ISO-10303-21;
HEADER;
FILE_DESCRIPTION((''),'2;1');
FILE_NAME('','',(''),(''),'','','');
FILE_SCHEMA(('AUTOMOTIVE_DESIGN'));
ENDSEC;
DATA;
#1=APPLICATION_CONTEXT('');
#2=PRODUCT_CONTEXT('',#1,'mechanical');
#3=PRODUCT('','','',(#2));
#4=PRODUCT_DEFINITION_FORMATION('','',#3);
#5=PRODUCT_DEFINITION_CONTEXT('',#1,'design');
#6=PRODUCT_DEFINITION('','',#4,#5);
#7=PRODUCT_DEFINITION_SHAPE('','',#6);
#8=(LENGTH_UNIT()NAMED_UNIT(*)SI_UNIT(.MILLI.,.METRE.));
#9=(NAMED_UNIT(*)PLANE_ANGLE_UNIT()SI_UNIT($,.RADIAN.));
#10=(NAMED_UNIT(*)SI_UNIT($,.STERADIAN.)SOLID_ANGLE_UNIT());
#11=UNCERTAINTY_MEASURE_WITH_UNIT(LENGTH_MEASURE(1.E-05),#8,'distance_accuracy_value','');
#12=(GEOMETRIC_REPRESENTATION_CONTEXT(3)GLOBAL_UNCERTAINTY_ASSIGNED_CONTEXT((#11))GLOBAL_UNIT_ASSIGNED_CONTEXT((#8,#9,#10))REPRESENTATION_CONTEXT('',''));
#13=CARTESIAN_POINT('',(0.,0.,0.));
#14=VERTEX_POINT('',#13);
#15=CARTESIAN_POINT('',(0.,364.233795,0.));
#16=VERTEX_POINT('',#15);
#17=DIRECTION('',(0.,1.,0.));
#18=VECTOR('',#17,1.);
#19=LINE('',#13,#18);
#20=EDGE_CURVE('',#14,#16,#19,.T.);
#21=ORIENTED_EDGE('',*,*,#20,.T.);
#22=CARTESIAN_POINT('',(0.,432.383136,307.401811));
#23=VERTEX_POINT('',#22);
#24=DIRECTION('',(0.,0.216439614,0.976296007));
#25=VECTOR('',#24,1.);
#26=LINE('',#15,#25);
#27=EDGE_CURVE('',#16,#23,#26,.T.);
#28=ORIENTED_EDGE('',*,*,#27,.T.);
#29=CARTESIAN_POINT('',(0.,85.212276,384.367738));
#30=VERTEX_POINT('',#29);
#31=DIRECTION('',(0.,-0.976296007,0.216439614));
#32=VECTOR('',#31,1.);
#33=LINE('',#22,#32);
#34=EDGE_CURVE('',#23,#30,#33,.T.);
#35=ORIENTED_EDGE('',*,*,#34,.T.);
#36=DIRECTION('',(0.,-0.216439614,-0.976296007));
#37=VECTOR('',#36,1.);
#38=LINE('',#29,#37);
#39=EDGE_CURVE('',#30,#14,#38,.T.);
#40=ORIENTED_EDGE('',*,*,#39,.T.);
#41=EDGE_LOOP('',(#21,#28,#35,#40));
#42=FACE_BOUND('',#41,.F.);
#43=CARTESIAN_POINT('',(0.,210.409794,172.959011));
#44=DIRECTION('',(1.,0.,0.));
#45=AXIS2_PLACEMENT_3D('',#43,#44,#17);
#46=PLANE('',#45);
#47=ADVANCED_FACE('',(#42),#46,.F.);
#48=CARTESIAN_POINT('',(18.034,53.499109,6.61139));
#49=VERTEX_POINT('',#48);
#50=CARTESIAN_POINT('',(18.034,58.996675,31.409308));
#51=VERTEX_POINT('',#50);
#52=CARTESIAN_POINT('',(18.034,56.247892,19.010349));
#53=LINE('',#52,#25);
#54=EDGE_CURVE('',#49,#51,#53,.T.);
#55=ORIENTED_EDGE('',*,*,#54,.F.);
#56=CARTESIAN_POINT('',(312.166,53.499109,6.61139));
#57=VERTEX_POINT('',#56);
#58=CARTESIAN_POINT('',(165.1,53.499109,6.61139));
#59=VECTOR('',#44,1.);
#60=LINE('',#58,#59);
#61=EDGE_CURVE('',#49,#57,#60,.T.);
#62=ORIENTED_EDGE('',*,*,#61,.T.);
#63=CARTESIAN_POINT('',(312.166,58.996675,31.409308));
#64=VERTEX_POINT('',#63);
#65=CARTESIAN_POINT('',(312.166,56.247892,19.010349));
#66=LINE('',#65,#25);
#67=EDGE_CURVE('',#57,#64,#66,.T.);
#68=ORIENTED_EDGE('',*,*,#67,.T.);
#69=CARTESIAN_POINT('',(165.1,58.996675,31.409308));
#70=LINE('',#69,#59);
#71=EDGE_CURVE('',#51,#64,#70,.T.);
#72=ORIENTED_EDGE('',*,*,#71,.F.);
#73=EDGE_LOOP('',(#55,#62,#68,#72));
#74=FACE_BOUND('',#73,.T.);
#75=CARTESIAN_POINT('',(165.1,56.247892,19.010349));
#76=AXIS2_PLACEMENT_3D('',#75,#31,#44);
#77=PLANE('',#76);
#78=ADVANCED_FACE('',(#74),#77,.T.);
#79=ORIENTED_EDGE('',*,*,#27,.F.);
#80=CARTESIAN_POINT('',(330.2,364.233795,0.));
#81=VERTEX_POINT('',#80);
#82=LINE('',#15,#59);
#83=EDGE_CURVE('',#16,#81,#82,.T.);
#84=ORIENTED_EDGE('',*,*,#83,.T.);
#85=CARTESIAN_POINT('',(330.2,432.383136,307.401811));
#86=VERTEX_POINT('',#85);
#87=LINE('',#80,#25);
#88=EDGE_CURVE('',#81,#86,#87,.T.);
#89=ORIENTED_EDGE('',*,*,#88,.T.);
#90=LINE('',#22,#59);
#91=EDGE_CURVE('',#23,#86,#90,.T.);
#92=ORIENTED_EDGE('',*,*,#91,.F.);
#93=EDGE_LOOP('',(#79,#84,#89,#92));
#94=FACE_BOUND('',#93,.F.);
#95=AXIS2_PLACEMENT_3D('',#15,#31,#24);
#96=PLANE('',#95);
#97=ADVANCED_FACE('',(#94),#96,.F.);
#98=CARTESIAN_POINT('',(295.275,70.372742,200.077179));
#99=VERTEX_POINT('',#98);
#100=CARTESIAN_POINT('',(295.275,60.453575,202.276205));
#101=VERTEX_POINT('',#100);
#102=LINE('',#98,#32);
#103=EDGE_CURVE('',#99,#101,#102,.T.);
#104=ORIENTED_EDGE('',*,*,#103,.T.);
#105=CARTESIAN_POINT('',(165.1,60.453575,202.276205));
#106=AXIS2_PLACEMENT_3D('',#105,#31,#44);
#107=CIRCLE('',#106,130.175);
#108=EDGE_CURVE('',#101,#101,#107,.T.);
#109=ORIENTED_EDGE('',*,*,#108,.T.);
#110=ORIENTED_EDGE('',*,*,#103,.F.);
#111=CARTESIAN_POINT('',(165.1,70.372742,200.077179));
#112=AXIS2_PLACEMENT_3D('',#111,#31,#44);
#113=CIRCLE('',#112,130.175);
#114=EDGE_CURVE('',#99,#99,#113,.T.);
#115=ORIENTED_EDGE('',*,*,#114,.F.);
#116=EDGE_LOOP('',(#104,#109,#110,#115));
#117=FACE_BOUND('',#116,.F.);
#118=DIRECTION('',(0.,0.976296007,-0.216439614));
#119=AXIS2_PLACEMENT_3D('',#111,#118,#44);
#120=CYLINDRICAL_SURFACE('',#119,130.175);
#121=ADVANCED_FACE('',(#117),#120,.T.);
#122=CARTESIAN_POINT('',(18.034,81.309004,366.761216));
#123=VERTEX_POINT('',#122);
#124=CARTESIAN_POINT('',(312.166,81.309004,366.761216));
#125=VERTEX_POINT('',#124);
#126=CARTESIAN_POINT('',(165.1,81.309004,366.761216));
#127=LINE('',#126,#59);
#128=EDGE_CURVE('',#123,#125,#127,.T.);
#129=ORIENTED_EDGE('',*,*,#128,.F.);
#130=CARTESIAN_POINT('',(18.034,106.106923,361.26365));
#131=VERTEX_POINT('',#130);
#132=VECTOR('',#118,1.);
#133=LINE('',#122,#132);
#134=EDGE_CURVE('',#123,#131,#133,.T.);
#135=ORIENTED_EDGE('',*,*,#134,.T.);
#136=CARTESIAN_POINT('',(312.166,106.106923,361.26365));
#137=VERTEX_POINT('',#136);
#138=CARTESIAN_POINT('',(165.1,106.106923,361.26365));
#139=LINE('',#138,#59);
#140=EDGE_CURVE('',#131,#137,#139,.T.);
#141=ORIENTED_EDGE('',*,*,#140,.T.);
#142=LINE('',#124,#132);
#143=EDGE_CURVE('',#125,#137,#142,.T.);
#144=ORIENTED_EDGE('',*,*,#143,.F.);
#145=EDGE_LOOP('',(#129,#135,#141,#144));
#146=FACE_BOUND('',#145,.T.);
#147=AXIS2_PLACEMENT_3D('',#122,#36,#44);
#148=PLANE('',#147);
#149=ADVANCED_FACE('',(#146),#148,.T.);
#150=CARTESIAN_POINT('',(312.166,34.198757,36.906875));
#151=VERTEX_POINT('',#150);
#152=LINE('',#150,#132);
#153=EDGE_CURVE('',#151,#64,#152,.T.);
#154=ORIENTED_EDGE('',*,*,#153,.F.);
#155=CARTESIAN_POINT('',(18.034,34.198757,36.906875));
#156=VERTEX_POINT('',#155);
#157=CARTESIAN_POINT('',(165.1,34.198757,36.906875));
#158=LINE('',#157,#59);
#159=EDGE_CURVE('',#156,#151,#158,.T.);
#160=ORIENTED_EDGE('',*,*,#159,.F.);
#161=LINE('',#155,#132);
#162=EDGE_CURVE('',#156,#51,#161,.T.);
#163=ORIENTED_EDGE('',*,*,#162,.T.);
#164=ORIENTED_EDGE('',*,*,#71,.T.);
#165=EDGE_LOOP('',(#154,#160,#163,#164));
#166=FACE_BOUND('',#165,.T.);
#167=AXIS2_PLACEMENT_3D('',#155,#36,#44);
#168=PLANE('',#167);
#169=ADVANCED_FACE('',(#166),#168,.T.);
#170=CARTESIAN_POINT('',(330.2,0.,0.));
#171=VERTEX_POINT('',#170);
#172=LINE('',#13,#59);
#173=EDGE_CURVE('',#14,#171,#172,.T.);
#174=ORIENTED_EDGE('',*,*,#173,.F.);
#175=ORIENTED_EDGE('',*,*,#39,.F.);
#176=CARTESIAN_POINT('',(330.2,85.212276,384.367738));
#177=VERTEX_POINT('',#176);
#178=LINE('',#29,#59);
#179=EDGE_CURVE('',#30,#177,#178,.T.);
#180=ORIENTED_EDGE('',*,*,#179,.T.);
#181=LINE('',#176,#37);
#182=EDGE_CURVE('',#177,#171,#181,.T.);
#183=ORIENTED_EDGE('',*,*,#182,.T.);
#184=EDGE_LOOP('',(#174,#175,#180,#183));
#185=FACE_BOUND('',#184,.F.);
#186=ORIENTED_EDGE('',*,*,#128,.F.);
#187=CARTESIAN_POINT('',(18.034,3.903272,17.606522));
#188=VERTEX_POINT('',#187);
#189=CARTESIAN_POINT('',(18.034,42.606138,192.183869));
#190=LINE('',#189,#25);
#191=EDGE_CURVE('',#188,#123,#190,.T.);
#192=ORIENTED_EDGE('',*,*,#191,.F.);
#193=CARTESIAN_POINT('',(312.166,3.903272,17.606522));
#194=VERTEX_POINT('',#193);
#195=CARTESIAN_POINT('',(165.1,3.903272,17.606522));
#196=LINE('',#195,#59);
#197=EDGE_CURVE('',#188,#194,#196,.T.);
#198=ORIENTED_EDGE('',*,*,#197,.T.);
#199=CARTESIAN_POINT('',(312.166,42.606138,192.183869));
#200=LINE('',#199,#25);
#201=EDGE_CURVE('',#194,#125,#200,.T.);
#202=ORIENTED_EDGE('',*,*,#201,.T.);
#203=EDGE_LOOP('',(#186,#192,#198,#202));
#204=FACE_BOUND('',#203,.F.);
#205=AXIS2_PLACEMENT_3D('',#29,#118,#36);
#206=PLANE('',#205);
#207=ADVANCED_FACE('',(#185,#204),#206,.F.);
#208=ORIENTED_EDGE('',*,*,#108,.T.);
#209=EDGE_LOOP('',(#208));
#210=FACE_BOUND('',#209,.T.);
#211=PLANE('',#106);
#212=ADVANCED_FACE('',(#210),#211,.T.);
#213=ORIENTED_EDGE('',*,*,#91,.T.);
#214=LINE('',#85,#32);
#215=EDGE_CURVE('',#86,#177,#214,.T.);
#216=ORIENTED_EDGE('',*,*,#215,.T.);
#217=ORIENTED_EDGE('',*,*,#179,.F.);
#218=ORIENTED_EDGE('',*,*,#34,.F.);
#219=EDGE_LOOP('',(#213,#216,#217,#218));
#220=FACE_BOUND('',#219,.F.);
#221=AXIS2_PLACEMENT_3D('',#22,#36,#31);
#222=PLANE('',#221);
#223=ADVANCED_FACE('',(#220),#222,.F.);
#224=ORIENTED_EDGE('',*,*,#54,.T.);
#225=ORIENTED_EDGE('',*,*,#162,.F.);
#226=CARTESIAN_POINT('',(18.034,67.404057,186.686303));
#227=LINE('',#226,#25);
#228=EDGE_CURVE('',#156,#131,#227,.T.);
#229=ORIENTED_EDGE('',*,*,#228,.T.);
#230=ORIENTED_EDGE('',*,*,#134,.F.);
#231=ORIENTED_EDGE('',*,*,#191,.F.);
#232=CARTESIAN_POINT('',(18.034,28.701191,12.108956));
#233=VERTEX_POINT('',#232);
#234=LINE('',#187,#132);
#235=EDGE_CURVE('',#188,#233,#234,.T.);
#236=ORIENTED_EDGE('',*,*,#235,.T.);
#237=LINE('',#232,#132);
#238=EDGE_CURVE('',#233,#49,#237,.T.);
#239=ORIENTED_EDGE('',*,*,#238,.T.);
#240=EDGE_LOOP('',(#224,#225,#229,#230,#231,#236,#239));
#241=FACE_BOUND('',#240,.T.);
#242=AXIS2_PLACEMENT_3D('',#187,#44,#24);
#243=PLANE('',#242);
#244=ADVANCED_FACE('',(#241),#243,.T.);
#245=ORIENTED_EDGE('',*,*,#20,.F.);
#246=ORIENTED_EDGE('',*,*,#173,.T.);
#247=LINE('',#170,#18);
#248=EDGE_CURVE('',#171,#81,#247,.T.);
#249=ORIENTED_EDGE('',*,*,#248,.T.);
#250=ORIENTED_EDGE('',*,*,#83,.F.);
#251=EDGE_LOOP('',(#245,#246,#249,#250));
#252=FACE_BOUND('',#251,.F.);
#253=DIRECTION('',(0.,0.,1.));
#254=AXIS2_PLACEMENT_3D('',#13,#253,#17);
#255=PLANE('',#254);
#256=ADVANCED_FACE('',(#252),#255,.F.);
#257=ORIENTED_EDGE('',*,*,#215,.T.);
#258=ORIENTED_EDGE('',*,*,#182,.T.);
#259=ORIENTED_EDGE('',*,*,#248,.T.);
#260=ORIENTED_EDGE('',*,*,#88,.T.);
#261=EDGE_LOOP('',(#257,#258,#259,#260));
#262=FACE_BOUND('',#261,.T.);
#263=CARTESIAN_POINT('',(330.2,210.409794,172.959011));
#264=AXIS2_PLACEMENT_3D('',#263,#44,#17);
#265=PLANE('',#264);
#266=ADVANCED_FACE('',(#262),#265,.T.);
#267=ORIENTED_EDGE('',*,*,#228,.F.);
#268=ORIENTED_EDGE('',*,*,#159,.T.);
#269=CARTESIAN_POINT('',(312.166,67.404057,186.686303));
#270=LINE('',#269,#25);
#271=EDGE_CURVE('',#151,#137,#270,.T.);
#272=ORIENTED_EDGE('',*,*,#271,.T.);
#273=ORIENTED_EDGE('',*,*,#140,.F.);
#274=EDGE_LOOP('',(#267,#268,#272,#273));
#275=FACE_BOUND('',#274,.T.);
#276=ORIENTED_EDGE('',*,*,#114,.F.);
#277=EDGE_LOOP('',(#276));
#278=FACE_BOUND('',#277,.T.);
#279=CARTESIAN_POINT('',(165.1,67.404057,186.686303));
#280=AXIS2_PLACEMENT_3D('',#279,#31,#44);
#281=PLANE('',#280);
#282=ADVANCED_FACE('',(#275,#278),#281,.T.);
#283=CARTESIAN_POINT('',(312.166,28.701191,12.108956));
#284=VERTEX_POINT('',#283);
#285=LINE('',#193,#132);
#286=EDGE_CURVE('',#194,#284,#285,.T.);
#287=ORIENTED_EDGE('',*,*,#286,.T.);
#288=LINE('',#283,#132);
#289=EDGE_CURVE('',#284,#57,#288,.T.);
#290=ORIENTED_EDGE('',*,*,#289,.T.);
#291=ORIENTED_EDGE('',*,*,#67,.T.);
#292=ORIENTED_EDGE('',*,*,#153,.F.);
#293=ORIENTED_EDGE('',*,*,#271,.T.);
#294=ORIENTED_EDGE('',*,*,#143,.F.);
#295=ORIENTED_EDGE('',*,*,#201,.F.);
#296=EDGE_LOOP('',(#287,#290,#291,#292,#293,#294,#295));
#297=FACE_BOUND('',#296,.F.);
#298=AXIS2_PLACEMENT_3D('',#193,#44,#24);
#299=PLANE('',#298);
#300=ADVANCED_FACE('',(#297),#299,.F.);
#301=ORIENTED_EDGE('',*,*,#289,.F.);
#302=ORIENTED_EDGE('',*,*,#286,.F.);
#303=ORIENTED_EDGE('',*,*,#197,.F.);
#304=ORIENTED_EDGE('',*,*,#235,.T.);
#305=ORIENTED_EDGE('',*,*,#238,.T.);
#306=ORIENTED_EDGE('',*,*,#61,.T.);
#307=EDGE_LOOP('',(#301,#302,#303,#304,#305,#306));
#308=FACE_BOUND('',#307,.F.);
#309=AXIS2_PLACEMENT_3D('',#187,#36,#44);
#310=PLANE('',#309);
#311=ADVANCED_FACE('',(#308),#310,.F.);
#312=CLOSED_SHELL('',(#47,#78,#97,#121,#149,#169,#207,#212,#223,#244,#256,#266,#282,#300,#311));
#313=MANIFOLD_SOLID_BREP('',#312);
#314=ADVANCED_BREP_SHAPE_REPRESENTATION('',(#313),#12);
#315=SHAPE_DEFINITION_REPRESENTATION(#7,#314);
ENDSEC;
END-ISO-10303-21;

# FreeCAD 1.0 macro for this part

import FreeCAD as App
import Part
import Sketcher

V = App.Vector
Q = App.Units.Quantity

doc = App.newDocument("Part")
params = doc.addObject("Spreadsheet::Sheet", "Params")
for row, (alias, value) in enumerate([
    ("sketch1_length", "14 in"),
    ("sketch1_length2", "15.5 in"),
    ("pad1_length", "13 in"),
    ("sketch2_width", "11.58 in"),
    ("sketch2_height", "14.08 in"),
    ("pocket1_length", "1 in"),
    ("sketch3_diameter", "10.25 in"),
    ("pad2_length", "0.4 in"),
    ("sketch4_height", "1 in"),
    ("sketch4_width", "11.58 in"),
    ("pocket2_length", "1 in"),
], start=1):
    params.set(f"A{row}", alias)
    params.set(f"B{row}", "=" + value)
    params.setAlias(f"B{row}", alias)

body = doc.addObject("PartDesign::Body", "Body")

# Sketch on YZ plane
sketch1 = body.newObject("Sketcher::SketchObject", "Sketch")
sketch1.AttachmentSupport = (doc.getObject("YZ_Plane"), [""])
sketch1.MapMode = "FlatFace"
sketch1.addGeometry([
    Part.LineSegment(V(85.212276, 384.367738, 0), V(0, 0, 0)),
    Part.LineSegment(V(0, 0, 0), V(364.233795, 0, 0)),
    Part.LineSegment(V(364.233795, 0, 0), V(432.383136, 307.401811, 0)),
    Part.LineSegment(V(432.383136, 307.401811, 0), V(85.212276, 384.367738, 0)),
], False)
sketch1.addConstraint([
    Sketcher.Constraint("Coincident", 0, 2, 1, 1),
    Sketcher.Constraint("Coincident", 1, 2, 2, 1),
    Sketcher.Constraint("Coincident", 2, 2, 3, 1),
    Sketcher.Constraint("Coincident", 3, 2, 0, 1),
    Sketcher.Constraint("Horizontal", 1),
    Sketcher.Constraint("Coincident", 0, 2, -1, 1),
    Sketcher.Constraint("Parallel", 0, 2),
    Sketcher.Constraint("Perpendicular", 2, 3),
    Sketcher.Constraint("Distance", 3, Q("14 in")),
    Sketcher.Constraint("Distance", 0, Q("15.5 in")),
    Sketcher.Constraint("Angle", 0, Q("-102.5 deg")),
])
sketch1.setExpression("Constraints[8]", "Params.sketch1_length")
sketch1.setExpression("Constraints[9]", "Params.sketch1_length2")
pad1 = body.newObject("PartDesign::Pad", "Pad")
pad1.Profile = sketch1
pad1.setExpression("Length", "Params.pad1_length")

# Sketch on an angled plane
sketch2 = body.newObject("Sketcher::SketchObject", "Sketch001")
sketch2.Placement = App.Placement(V(0, 0, 0), App.Rotation(V(1, 0, 0), V(0, 0.216439614, 0.976296007), V(0, -0.976296007, 0.216439614), "ZXY"))
sketch2.addGeometry([
    Part.LineSegment(V(18.034, 375.666, 0), V(18.034, 18.034, 0)),
    Part.LineSegment(V(18.034, 18.034, 0), V(312.166, 18.034, 0)),
    Part.LineSegment(V(312.166, 18.034, 0), V(312.166, 375.666, 0)),
    Part.LineSegment(V(312.166, 375.666, 0), V(18.034, 375.666, 0)),
], False)
sketch2.addConstraint([
    Sketcher.Constraint("Coincident", 0, 2, 1, 1),
    Sketcher.Constraint("Coincident", 1, 2, 2, 1),
    Sketcher.Constraint("Coincident", 2, 2, 3, 1),
    Sketcher.Constraint("Coincident", 3, 2, 0, 1),
    Sketcher.Constraint("Vertical", 0),
    Sketcher.Constraint("Horizontal", 1),
    Sketcher.Constraint("Vertical", 2),
    Sketcher.Constraint("Horizontal", 3),
    Sketcher.Constraint("DistanceX", 1, 1, 1, 2, Q("11.58 in")),
    Sketcher.Constraint("DistanceY", 0, 2, 0, 1, Q("14.08 in")),
    Sketcher.Constraint("DistanceX", -1, 1, 0, 2, Q("0.71 in")),
    Sketcher.Constraint("DistanceY", -1, 1, 0, 2, Q("0.71 in")),
])
sketch2.setExpression("Constraints[8]", "Params.sketch2_width")
sketch2.setExpression("Constraints[9]", "Params.sketch2_height")
pocket1 = body.newObject("PartDesign::Pocket", "Pocket")
pocket1.Profile = sketch2
pocket1.setExpression("Length", "Params.pocket1_length")

# Sketch on an angled plane
sketch3 = body.newObject("Sketcher::SketchObject", "Sketch002")
sketch3.Placement = App.Placement(V(0, 24.797919, -5.497566), App.Rotation(V(1, 0, 0), V(0, 0.216439614, 0.976296007), V(0, -0.976296007, 0.216439614), "ZXY"))
sketch3.addGeometry(Part.Circle(V(165.1, 210.566, 0), V(0, 0, 1), 130.175), False)
sketch3.addConstraint([
    Sketcher.Constraint("Diameter", 0, Q("10.25 in")),
    Sketcher.Constraint("DistanceX", -1, 1, 0, 3, Q("6.5 in")),
    Sketcher.Constraint("DistanceY", -1, 1, 0, 3, Q("8.29 in")),
])
sketch3.setExpression("Constraints[0]", "Params.sketch3_diameter")
pad2 = body.newObject("PartDesign::Pad", "Pad001")
pad2.Profile = sketch3
pad2.setExpression("Length", "Params.pad2_length")

# Sketch on an angled plane
sketch4 = body.newObject("Sketcher::SketchObject", "Sketch003")
sketch4.Placement = App.Placement(V(0, 24.797919, -5.497566), App.Rotation(V(1, 0, 0), V(0, 0.216439614, 0.976296007), V(0, -0.976296007, 0.216439614), "ZXY"))
sketch4.addGeometry([
    Part.LineSegment(V(18.034, 43.434, 0), V(18.034, 18.034, 0)),
    Part.LineSegment(V(18.034, 18.034, 0), V(312.166, 18.034, 0)),
    Part.LineSegment(V(312.166, 18.034, 0), V(312.166, 43.434, 0)),
    Part.LineSegment(V(312.166, 43.434, 0), V(18.034, 43.434, 0)),
], False)
sketch4.addConstraint([
    Sketcher.Constraint("Coincident", 0, 2, 1, 1),
    Sketcher.Constraint("Coincident", 1, 2, 2, 1),
    Sketcher.Constraint("Coincident", 2, 2, 3, 1),
    Sketcher.Constraint("Coincident", 3, 2, 0, 1),
    Sketcher.Constraint("Vertical", 0),
    Sketcher.Constraint("Horizontal", 1),
    Sketcher.Constraint("Vertical", 2),
    Sketcher.Constraint("Horizontal", 3),
    Sketcher.Constraint("DistanceY", 0, 2, 0, 1, Q("1 in")),
    Sketcher.Constraint("DistanceX", 1, 1, 1, 2, Q("11.58 in")),
    Sketcher.Constraint("DistanceX", -1, 1, 0, 2, Q("0.71 in")),
    Sketcher.Constraint("DistanceY", -1, 1, 0, 2, Q("0.71 in")),
])
sketch4.setExpression("Constraints[8]", "Params.sketch4_height")
sketch4.setExpression("Constraints[9]", "Params.sketch4_width")
pocket2 = body.newObject("PartDesign::Pocket", "Pocket001")
pocket2.Profile = sketch4
pocket2.setExpression("Length", "Params.pocket2_length")

doc.recompute()
